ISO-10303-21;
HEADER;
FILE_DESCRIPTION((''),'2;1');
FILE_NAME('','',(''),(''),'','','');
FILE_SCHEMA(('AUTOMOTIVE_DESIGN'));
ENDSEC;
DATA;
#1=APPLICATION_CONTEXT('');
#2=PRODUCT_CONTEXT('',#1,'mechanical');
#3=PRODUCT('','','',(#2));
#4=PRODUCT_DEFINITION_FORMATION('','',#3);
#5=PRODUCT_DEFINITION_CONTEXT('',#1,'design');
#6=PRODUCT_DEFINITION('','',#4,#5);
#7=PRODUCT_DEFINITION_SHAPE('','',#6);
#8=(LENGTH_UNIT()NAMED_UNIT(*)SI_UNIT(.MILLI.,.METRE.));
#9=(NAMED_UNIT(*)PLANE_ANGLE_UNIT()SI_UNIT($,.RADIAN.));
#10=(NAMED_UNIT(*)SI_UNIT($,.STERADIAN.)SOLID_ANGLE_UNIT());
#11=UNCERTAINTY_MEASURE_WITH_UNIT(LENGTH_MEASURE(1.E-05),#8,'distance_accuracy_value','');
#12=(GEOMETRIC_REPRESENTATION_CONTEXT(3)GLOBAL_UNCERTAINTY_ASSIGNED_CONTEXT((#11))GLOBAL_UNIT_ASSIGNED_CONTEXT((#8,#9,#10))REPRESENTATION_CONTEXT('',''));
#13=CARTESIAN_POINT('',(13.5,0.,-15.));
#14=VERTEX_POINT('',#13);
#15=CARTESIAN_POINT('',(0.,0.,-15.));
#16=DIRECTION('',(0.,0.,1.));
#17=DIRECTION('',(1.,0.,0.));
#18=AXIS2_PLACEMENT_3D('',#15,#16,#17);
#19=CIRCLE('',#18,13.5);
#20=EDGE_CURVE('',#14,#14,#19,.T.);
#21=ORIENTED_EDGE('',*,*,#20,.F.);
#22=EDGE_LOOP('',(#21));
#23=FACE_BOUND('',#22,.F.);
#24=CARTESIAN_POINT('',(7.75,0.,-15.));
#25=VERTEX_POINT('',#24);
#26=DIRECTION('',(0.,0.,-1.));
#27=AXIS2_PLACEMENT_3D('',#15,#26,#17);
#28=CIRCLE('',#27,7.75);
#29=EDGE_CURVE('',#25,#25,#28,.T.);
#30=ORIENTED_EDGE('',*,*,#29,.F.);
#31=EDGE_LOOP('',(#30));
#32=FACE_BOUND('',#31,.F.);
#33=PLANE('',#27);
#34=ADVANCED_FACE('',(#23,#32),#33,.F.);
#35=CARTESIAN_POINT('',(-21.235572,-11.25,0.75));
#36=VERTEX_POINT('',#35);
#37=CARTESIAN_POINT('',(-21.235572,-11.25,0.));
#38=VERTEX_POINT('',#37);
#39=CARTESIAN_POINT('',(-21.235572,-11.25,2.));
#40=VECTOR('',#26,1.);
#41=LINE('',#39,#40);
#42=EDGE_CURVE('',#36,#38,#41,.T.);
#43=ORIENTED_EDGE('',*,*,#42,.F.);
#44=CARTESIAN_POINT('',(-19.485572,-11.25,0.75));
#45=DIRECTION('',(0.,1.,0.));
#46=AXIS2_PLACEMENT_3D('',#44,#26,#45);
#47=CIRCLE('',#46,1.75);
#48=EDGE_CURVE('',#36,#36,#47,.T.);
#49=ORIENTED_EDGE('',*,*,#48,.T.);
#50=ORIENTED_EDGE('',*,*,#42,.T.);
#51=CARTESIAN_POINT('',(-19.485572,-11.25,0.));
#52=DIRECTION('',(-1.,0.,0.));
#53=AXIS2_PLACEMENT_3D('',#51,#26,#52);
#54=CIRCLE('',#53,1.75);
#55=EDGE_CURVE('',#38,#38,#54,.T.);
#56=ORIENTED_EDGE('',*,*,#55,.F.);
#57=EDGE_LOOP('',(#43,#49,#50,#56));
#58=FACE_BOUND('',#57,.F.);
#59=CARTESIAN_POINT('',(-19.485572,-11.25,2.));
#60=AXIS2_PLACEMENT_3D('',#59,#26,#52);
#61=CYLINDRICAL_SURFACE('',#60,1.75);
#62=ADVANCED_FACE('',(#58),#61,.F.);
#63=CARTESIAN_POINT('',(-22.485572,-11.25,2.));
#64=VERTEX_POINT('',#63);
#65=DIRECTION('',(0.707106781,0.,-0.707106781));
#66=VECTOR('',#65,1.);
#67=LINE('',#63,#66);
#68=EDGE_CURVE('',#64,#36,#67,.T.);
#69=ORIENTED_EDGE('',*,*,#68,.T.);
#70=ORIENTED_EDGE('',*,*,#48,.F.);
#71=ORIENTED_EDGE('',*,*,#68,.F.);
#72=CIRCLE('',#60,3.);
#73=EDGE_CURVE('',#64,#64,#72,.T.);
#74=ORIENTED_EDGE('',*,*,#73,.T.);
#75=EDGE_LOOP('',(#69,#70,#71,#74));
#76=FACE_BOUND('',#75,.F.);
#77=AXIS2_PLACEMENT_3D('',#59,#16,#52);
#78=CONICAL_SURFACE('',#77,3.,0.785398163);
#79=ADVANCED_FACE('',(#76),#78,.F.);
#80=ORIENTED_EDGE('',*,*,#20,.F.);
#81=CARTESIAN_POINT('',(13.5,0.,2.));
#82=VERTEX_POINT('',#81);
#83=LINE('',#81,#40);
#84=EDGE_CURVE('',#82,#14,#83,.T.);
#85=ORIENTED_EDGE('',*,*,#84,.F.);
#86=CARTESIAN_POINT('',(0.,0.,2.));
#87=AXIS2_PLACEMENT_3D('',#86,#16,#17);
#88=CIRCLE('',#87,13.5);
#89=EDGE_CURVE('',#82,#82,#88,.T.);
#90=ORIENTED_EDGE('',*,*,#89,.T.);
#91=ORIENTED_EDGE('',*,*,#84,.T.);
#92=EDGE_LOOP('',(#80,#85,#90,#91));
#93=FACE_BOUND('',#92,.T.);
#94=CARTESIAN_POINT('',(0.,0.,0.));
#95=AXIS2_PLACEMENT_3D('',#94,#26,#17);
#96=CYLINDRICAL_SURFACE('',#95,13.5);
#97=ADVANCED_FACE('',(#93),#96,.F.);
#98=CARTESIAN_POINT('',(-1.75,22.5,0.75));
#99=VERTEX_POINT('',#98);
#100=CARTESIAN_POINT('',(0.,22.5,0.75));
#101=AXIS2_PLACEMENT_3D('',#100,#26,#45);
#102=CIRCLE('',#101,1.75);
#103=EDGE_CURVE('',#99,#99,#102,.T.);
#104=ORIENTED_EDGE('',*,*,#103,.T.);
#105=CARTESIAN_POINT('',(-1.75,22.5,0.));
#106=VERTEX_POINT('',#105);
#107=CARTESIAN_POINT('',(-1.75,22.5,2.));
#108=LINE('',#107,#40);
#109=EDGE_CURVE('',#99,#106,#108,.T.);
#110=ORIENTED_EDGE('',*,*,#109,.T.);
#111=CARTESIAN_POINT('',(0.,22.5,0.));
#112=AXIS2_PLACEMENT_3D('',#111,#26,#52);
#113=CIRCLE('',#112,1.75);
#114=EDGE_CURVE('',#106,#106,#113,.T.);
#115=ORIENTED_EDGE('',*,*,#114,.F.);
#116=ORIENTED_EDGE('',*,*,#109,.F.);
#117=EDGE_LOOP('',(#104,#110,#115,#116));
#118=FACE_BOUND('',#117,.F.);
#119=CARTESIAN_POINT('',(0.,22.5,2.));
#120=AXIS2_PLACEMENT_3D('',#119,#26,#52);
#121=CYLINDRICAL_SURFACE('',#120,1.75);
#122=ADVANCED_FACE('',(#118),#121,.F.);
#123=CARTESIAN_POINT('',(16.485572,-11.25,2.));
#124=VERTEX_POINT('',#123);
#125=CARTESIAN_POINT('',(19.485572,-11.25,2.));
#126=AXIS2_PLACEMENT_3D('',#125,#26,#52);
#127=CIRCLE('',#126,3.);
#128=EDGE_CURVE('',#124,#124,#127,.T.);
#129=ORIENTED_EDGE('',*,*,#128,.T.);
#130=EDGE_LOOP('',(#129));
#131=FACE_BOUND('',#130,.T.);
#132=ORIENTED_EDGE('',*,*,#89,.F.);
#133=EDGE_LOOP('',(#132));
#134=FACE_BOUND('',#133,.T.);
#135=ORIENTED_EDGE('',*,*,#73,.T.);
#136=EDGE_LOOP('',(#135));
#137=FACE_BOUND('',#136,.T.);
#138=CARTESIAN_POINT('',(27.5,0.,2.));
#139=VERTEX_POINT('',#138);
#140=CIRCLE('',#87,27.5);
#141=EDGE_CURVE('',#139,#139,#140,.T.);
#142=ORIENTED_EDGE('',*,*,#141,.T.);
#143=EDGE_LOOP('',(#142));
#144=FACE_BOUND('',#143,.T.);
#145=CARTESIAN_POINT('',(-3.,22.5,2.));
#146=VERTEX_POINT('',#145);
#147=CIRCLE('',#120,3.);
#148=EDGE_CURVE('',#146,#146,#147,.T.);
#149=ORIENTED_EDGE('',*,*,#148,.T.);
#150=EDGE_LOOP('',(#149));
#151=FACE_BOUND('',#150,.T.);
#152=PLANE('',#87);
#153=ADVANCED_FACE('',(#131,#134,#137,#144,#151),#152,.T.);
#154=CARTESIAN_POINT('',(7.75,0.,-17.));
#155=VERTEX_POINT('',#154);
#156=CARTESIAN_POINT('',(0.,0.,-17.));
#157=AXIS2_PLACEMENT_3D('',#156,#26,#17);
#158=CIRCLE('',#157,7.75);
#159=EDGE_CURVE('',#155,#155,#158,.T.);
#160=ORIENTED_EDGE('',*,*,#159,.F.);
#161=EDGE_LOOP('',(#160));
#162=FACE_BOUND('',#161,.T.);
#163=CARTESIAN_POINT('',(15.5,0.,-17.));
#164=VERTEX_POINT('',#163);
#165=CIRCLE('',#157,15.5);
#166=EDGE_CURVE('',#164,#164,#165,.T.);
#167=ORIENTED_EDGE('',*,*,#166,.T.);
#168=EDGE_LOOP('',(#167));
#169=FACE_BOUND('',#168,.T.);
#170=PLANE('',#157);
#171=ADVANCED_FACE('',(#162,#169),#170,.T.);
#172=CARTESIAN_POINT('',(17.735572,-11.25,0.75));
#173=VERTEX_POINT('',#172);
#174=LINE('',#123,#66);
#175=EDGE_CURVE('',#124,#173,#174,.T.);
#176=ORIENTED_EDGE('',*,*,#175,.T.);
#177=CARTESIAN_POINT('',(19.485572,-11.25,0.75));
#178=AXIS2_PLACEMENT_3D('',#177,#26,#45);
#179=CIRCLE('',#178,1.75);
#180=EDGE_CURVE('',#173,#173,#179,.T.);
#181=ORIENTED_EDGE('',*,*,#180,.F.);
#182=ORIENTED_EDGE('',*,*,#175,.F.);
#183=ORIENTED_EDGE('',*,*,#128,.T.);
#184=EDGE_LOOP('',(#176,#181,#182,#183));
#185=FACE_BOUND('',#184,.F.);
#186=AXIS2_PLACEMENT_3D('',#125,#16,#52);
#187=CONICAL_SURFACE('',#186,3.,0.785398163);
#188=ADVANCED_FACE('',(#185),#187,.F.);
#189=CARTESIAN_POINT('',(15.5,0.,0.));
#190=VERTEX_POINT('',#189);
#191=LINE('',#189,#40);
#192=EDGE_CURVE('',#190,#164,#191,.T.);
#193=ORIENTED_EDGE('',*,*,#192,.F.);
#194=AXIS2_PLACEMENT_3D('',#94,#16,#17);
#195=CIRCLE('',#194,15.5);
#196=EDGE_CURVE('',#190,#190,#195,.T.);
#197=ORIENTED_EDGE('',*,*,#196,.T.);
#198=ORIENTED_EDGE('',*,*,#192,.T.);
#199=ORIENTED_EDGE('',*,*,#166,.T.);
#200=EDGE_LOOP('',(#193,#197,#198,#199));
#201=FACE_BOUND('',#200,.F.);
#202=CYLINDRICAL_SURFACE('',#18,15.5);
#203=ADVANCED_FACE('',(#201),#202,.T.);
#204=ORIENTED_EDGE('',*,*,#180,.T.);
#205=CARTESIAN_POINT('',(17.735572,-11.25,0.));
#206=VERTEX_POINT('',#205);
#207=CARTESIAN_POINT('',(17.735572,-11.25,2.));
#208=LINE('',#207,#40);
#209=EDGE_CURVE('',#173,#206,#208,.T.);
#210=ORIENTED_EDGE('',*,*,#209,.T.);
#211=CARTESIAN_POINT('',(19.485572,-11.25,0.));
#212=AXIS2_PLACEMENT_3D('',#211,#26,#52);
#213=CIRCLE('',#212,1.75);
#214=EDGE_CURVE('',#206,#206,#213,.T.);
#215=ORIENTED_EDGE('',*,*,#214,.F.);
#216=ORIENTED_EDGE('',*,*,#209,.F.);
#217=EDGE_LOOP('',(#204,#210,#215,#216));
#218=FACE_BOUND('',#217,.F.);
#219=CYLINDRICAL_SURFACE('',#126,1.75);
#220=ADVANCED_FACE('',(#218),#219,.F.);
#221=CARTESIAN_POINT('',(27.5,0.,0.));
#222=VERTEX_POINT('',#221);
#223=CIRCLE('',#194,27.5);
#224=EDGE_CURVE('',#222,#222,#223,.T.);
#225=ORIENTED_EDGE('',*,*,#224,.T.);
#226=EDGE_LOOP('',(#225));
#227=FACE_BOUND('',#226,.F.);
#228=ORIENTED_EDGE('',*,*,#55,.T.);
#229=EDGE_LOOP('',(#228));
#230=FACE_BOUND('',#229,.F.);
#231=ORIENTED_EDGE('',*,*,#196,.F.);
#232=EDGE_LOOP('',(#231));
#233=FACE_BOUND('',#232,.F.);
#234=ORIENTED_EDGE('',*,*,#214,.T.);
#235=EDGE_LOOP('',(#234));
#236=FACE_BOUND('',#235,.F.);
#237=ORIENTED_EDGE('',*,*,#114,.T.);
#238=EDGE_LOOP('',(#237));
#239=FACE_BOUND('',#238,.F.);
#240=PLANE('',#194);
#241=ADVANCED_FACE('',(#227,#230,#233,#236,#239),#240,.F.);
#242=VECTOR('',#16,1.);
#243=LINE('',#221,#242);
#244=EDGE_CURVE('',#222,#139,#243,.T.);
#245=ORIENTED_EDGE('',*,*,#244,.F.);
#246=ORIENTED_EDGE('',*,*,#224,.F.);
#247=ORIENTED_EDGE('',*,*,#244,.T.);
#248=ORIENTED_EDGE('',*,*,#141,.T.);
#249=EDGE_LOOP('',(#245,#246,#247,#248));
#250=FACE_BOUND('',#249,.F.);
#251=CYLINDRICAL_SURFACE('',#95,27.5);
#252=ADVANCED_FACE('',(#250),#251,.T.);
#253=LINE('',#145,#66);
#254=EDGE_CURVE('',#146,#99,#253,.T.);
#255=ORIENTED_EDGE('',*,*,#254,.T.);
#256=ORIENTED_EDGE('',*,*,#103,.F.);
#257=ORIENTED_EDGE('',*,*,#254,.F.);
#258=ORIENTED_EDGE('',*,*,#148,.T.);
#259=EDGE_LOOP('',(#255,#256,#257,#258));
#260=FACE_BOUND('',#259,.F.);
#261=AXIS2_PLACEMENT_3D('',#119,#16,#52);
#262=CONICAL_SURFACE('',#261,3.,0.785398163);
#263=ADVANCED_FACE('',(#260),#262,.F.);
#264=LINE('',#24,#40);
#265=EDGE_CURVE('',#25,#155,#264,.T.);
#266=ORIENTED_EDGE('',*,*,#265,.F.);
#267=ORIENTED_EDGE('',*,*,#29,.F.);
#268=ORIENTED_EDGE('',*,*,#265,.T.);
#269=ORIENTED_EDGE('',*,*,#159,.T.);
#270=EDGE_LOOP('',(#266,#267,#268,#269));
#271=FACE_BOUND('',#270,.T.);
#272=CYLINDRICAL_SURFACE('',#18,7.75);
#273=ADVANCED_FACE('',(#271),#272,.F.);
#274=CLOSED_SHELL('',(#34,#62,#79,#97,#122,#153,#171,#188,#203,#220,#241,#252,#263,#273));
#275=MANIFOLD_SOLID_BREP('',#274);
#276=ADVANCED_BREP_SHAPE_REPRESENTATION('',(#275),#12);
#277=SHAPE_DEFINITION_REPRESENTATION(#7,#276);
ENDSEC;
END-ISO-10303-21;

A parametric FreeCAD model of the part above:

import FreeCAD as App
import Part
import Sketcher

doc = App.newDocument("Part")
body = doc.addObject("PartDesign::Body", "Body")

# Sketch on XY plane
sketch1 = doc.addObject("Sketcher::SketchObject", "Sketch")
body.addObject(sketch1)
sketch1.AttachmentSupport = (doc.XY_Plane, [""])
sketch1.MapMode = "FlatFace"
sketch1.addGeometry([
    Part.Circle(App.Vector(0, 0, 0), App.Vector(0, 0, 1), 16),
    Part.Circle(App.Vector(0, 0, 0), App.Vector(0, 0, 1), 14),
], False)
sketch1.addConstraint([
    Sketcher.Constraint("Coincident", 0, 3, -1, 1),
    Sketcher.Constraint("Coincident", 1, 3, -1, 1),
    Sketcher.Constraint("Diameter", 0, 31.0),
    Sketcher.Constraint("Diameter", 1, 27.0),
])
pad1 = doc.addObject("PartDesign::Pad", "Pad")
body.addObject(pad1)
pad1.Profile = sketch1
pad1.Length = 15
pad1.Reversed = True

# Sketch on XY plane
sketch2 = doc.addObject("Sketcher::SketchObject", "Sketch001")
body.addObject(sketch2)
sketch2.AttachmentSupport = (doc.XY_Plane, [""])
sketch2.MapMode = "FlatFace"
sketch2.addGeometry([
    Part.Circle(App.Vector(0, 0, 0), App.Vector(0, 0, 1), 28),
    Part.Circle(App.Vector(0, 0, 0), App.Vector(0, 0, 1), 14),
], False)
sketch2.addConstraint([
    Sketcher.Constraint("Coincident", 0, 3, -1, 1),
    Sketcher.Constraint("Coincident", 1, 3, -1, 1),
    Sketcher.Constraint("Diameter", 0, 55.0),
    Sketcher.Constraint("Diameter", 1, 27.0),
])
pad2 = doc.addObject("PartDesign::Pad", "Pad001")
body.addObject(pad2)
pad2.Profile = sketch2
pad2.Length = 2

# Sketch on XY plane
sketch3 = doc.addObject("Sketcher::SketchObject", "Sketch002")
body.addObject(sketch3)
sketch3.AttachmentSupport = (doc.XY_Plane, [""])
sketch3.MapMode = "FlatFace"
sketch3.AttachmentOffset = App.Placement(App.Vector(0, 0, -15), App.Rotation())
sketch3.addGeometry([
    Part.Circle(App.Vector(0, 0, 0), App.Vector(0, 0, 1), 16),
    Part.Circle(App.Vector(0, 0, 0), App.Vector(0, 0, 1), 8),
], False)
sketch3.addConstraint([
    Sketcher.Constraint("Coincident", 0, 3, -1, 1),
    Sketcher.Constraint("Coincident", 1, 3, -1, 1),
    Sketcher.Constraint("Diameter", 0, 31.0),
    Sketcher.Constraint("Diameter", 1, 15.5),
])
pad3 = doc.addObject("PartDesign::Pad", "Pad002")
body.addObject(pad3)
pad3.Profile = sketch3
pad3.Length = 2
pad3.Reversed = True

# Sketch on XY plane
sketch4 = doc.addObject("Sketcher::SketchObject", "Sketch003")
body.addObject(sketch4)
sketch4.AttachmentSupport = (doc.XY_Plane, [""])
sketch4.MapMode = "FlatFace"
sketch4.AttachmentOffset = App.Placement(App.Vector(0, 0, 2), App.Rotation())
sketch4.addGeometry([
    Part.Circle(App.Vector(0, 22.5, 0), App.Vector(0, 0, 1), 1.8),
    Part.Circle(App.Vector(-19.5, -11.2, 0), App.Vector(0, 0, 1), 1.8),
    Part.Circle(App.Vector(19.5, -11.2, 0), App.Vector(0, 0, 1), 1.8),
], False)
sketch4.addConstraint([
    Sketcher.Constraint("Equal", 0, 1),
    Sketcher.Constraint("Equal", 1, 2),
    Sketcher.Constraint("Symmetric", 1, 3, 2, 3, -2),
    Sketcher.Constraint("PointOnObject", 0, 3, -2),
    Sketcher.Constraint("Diameter", 0, 3.5),
    Sketcher.Constraint("DistanceY", -1, 1, 0, 3, 22.5),
    Sketcher.Constraint("DistanceY", 1, 3, -1, 1, 11.25),
    Sketcher.Constraint("DistanceX", 1, 3, -1, 1, 19.485572),
])
doc.recompute()
hole = doc.addObject("PartDesign::Hole", "Hole")
body.addObject(hole)
hole.Profile = sketch4
hole.ThreadType = "None"
hole.Diameter = 3.5
hole.DepthType = "ThroughAll"
hole.HoleCutType = "Countersink"
hole.HoleCutDiameter = 6
hole.HoleCutCountersinkAngle = 90

doc.recompute()
